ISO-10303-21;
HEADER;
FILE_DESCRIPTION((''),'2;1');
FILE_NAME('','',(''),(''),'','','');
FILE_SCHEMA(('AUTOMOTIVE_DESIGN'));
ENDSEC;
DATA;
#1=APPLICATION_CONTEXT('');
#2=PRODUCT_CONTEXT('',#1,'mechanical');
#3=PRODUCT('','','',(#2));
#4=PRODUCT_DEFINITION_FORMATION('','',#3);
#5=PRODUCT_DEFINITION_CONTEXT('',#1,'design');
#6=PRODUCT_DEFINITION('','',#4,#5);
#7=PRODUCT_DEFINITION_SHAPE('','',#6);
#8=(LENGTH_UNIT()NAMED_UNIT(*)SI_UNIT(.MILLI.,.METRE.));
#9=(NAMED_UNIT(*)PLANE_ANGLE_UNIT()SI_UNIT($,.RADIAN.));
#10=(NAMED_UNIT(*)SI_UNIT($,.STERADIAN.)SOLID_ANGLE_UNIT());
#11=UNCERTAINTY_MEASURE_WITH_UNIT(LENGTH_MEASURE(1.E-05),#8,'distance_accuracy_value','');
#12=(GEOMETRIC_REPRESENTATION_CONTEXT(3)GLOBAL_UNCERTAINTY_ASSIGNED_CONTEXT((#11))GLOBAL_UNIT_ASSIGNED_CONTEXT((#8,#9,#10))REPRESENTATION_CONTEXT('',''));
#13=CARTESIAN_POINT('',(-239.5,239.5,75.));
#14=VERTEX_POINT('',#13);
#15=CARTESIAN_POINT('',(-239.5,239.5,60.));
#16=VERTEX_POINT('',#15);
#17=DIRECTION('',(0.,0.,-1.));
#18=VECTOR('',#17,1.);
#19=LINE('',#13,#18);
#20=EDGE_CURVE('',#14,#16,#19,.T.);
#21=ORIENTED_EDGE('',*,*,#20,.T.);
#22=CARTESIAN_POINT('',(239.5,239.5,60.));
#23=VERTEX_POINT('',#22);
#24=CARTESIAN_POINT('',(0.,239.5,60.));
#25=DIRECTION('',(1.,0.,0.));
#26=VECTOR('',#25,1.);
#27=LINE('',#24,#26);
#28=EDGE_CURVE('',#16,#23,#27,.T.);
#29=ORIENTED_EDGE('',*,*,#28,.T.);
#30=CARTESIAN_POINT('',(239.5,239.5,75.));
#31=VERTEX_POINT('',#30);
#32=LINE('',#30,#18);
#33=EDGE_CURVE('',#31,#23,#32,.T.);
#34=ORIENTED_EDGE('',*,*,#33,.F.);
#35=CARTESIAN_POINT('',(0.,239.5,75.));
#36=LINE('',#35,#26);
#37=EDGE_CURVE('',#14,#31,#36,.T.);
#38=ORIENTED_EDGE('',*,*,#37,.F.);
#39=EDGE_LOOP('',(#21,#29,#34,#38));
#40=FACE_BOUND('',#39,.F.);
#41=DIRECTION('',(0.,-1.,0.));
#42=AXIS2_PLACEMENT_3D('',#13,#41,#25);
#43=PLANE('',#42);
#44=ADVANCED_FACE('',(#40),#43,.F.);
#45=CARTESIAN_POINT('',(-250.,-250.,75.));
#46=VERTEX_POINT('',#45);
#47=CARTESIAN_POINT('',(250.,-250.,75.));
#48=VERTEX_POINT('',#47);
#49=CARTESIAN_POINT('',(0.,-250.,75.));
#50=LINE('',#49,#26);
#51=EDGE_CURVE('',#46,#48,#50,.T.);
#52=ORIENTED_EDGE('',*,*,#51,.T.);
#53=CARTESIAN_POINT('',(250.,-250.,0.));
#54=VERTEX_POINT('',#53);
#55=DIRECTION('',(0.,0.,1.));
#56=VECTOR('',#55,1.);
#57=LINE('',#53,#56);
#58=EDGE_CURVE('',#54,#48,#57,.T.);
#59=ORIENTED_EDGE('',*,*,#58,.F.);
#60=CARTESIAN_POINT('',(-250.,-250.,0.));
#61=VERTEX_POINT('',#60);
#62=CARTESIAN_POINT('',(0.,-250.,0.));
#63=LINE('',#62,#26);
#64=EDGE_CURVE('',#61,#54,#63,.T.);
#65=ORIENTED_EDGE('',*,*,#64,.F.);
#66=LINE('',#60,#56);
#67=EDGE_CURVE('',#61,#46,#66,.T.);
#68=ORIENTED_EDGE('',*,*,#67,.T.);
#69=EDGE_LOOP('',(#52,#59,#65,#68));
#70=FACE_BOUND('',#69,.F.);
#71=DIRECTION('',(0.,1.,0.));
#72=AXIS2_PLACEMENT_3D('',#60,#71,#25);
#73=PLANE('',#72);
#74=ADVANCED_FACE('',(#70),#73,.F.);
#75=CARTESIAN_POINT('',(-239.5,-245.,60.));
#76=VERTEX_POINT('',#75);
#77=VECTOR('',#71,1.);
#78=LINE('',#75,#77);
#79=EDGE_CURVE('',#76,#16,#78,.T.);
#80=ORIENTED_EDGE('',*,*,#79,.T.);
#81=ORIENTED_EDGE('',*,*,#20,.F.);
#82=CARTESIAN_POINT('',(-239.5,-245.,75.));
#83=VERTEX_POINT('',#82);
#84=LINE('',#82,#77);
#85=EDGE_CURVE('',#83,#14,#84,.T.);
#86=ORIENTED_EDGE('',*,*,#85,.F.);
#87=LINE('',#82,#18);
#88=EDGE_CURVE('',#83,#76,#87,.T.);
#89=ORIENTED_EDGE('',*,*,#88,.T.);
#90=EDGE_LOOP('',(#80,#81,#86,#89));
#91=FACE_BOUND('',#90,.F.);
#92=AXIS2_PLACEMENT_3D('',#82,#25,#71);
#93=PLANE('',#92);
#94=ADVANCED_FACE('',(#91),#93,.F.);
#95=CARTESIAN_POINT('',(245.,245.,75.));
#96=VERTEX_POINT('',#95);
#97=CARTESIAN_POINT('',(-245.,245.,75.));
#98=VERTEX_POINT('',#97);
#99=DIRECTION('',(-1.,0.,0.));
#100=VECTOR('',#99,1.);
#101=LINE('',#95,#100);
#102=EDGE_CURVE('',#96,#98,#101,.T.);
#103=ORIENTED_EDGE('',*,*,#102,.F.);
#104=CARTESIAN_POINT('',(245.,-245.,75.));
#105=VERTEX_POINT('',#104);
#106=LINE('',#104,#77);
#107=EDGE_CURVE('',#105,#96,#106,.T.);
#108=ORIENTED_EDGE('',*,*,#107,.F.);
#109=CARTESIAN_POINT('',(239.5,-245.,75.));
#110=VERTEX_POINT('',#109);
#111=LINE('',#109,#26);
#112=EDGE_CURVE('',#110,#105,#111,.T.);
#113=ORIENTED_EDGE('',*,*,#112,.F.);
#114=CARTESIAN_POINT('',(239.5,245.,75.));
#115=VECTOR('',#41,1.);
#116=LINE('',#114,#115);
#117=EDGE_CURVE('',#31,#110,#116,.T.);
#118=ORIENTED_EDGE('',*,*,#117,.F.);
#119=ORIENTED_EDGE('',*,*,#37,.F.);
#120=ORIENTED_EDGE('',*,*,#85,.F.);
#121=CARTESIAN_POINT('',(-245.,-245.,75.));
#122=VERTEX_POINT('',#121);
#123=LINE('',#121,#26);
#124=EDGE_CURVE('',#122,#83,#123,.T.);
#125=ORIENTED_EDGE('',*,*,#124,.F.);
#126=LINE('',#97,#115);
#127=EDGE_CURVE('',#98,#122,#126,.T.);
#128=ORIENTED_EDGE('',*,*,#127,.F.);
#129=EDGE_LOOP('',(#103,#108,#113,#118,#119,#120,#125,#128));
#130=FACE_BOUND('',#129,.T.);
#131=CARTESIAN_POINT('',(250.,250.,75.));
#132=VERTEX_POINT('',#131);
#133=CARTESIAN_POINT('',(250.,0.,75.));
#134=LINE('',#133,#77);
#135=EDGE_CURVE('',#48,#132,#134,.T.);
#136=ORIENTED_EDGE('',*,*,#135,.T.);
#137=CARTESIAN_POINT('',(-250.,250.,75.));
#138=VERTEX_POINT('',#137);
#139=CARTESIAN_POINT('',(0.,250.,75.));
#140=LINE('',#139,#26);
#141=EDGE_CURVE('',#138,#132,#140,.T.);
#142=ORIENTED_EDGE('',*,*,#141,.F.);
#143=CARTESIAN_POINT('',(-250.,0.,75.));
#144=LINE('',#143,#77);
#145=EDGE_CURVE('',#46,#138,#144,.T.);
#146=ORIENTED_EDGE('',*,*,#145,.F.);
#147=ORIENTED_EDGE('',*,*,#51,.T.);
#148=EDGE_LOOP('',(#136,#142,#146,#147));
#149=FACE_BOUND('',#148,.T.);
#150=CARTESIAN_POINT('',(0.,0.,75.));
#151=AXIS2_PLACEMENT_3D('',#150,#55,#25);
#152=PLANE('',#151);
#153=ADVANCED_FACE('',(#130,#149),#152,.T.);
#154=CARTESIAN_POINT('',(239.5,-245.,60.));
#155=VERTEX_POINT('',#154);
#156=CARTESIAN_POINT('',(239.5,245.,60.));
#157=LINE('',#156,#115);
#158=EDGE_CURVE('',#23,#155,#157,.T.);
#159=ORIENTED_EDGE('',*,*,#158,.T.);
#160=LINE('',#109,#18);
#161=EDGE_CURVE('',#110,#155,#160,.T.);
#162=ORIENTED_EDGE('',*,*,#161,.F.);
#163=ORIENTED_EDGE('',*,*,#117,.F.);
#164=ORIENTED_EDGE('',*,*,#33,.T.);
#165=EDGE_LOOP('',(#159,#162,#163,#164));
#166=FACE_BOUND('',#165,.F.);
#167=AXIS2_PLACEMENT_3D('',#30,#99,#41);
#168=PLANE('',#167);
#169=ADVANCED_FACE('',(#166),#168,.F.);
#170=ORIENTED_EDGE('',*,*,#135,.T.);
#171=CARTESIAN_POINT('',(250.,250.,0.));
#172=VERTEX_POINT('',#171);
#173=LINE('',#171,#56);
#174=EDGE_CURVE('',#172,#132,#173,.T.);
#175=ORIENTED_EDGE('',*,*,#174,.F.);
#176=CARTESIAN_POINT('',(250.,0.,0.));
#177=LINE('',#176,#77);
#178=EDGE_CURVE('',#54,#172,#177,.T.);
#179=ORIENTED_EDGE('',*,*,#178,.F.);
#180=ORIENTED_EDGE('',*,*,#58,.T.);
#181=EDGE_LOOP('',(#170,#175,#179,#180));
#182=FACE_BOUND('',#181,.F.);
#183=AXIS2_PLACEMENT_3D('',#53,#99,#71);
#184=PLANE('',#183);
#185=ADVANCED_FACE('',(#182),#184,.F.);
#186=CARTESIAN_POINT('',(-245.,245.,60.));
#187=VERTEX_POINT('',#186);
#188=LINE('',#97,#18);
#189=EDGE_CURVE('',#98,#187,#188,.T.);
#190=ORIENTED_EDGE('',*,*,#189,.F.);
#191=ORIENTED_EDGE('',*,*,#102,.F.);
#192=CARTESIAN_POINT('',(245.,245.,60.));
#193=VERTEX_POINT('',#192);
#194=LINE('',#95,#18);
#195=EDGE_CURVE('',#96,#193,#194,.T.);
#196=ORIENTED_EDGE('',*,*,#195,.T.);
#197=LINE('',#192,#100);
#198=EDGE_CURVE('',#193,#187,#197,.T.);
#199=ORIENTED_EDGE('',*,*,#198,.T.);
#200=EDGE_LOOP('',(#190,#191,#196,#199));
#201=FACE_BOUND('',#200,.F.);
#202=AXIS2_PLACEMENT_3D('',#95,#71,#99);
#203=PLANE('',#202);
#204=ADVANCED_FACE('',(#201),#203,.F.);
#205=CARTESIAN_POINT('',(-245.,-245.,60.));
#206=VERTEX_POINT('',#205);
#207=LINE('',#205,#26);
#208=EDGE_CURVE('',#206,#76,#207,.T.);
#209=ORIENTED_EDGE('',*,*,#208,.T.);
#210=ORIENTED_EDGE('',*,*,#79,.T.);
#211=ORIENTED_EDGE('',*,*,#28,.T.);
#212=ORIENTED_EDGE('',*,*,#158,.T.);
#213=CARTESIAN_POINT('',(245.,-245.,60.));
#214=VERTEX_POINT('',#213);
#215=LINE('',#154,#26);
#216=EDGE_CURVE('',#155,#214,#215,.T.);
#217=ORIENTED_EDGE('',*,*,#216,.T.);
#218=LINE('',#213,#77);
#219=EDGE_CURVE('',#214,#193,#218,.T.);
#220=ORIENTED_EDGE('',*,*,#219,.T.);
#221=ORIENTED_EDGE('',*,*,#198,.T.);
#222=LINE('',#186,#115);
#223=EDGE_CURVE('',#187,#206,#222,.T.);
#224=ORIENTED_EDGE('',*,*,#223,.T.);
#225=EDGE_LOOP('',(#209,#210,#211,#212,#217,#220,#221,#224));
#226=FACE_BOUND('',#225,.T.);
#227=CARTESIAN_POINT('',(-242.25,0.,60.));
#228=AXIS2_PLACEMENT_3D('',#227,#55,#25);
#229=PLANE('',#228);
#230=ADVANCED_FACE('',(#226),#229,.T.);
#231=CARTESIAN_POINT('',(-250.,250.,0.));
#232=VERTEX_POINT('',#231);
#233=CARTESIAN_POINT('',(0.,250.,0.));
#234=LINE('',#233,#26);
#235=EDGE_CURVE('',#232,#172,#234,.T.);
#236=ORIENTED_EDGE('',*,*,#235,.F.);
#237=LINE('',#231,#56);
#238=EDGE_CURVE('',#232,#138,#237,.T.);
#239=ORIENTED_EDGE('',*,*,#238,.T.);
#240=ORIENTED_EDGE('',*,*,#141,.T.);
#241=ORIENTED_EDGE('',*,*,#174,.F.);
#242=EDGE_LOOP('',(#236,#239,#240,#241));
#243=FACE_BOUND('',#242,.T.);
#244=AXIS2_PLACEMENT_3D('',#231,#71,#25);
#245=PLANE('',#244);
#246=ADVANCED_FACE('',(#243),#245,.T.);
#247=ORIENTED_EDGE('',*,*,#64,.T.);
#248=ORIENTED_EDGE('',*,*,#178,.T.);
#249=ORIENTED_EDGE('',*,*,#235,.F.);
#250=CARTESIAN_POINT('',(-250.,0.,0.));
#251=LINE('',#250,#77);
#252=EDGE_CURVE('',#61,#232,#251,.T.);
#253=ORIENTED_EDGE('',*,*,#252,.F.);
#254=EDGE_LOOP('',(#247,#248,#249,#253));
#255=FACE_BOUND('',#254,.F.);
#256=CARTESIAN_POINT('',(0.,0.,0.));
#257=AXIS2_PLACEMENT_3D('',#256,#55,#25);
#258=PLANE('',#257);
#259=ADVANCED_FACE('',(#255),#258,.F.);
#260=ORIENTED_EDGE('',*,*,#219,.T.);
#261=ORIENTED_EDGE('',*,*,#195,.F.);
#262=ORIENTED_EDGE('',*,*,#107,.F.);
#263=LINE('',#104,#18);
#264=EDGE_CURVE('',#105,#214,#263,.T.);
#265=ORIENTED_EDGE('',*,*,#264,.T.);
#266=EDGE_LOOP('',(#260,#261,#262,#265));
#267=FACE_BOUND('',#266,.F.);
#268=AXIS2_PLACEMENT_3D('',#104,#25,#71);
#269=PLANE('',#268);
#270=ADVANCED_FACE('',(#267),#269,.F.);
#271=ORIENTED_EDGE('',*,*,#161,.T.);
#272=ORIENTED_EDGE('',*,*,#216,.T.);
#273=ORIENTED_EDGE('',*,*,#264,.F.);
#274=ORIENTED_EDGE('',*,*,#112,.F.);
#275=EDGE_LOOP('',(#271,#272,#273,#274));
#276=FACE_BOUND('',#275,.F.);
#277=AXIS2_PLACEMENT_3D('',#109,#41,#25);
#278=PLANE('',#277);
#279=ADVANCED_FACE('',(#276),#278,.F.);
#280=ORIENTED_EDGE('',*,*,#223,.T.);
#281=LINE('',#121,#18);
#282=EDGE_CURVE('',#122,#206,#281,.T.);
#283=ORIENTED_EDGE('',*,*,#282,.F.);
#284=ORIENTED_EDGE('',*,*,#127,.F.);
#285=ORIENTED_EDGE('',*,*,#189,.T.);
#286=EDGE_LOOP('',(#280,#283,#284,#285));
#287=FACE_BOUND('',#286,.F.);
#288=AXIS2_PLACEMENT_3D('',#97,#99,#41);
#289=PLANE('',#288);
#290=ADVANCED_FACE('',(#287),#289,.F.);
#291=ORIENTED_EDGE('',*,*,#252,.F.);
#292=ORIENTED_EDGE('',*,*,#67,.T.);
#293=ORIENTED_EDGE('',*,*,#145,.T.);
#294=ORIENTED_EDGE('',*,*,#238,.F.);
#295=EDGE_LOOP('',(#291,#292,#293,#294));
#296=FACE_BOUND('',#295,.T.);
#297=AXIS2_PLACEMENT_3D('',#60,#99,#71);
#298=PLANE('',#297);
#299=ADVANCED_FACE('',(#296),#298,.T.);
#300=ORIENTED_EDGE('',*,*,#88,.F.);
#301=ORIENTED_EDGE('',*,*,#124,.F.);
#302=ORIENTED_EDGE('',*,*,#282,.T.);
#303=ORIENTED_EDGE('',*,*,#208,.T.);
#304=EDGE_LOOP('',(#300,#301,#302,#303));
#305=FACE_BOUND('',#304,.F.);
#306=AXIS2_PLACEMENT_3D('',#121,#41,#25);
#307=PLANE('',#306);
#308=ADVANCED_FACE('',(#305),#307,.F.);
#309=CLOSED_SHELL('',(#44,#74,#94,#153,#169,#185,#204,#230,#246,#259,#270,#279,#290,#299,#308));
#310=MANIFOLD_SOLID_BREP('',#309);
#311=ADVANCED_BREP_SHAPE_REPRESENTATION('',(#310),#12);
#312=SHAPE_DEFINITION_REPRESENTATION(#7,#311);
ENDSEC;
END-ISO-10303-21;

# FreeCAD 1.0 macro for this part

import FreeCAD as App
import Part
import Sketcher
from FreeCAD import Vector

doc = App.newDocument("Part")
params = doc.addObject("Spreadsheet::Sheet", "Params")
for row, (alias, value) in enumerate([
    ("sketch1_width", "500 mm"),
    ("pad1_length", "75 mm"),
    ("sketch2_width", "479 mm"),
    ("sketch2_width2", "490 mm"),
    ("sketch2_height", "484.5 mm"),
    ("pocket1_length", "15 mm"),
], start=1):
    params.set(f"A{row}", alias)
    params.set(f"B{row}", "=" + value)
    params.setAlias(f"B{row}", alias)

body = doc.addObject("PartDesign::Body", "Body")

# Sketch on XY plane
sketch1 = doc.addObject("Sketcher::SketchObject", "Sketch")
body.addObject(sketch1)
sketch1.AttachmentSupport = (doc.XY_Plane, [""])
sketch1.MapMode = "FlatFace"
sketch1.addGeometry([
    Part.LineSegment(Vector(-250, 250, 0), Vector(-250, -250, 0)),
    Part.LineSegment(Vector(-250, -250, 0), Vector(250, -250, 0)),
    Part.LineSegment(Vector(250, -250, 0), Vector(250, 250, 0)),
    Part.LineSegment(Vector(250, 250, 0), Vector(-250, 250, 0)),
], False)
sketch1.addConstraint([
    Sketcher.Constraint("Coincident", 0, 2, 1, 1),
    Sketcher.Constraint("Coincident", 1, 2, 2, 1),
    Sketcher.Constraint("Coincident", 2, 2, 3, 1),
    Sketcher.Constraint("Coincident", 3, 2, 0, 1),
    Sketcher.Constraint("Vertical", 0),
    Sketcher.Constraint("Horizontal", 1),
    Sketcher.Constraint("Vertical", 2),
    Sketcher.Constraint("Horizontal", 3),
    Sketcher.Constraint("Symmetric", 0, 2, 2, 2, -1, 1),
    Sketcher.Constraint("Equal", 3, 0),
    Sketcher.Constraint("DistanceX", 1, 1, 1, 2, 500.0),
])
sketch1.setExpression("Constraints[10]", "Params.sketch1_width")
pad1 = doc.addObject("PartDesign::Pad", "Pad")
body.addObject(pad1)
pad1.Profile = sketch1
pad1.setExpression("Length", "Params.pad1_length")

# Sketch on XY plane
sketch2 = doc.addObject("Sketcher::SketchObject", "Sketch001")
body.addObject(sketch2)
sketch2.AttachmentSupport = (doc.XY_Plane, [""])
sketch2.MapMode = "FlatFace"
sketch2.AttachmentOffset = App.Placement(Vector(0, 0, 75), App.Rotation())
sketch2.addGeometry([
    Part.LineSegment(Vector(-245, 245, 0), Vector(-245, -245, 0)),  # 0
    Part.LineSegment(Vector(-245, -245, 0), Vector(-239.5, -245, 0)),  # 1
    Part.LineSegment(Vector(-239.5, -245, 0), Vector(-239.5, 239.5, 0)),  # 2
    Part.LineSegment(Vector(-239.5, 239.5, 0), Vector(239.5, 239.5, 0)),  # 3
    Part.LineSegment(Vector(239.5, 239.5, 0), Vector(239.5, -245, 0)),  # 4
    Part.LineSegment(Vector(239.5, -245, 0), Vector(245, -245, 0)),  # 5
    Part.LineSegment(Vector(245, -245, 0), Vector(245, 245, 0)),  # 6
    Part.LineSegment(Vector(245, 245, 0), Vector(-245, 245, 0)),  # 7
], False)
sketch2.addConstraint([
    Sketcher.Constraint("Coincident", 0, 2, 1, 1),
    Sketcher.Constraint("Coincident", 1, 2, 2, 1),
    Sketcher.Constraint("Coincident", 2, 2, 3, 1),
    Sketcher.Constraint("Coincident", 3, 2, 4, 1),
    Sketcher.Constraint("Coincident", 4, 2, 5, 1),
    Sketcher.Constraint("Coincident", 5, 2, 6, 1),
    Sketcher.Constraint("Coincident", 6, 2, 7, 1),
    Sketcher.Constraint("Coincident", 7, 2, 0, 1),
    Sketcher.Constraint("Vertical", 0),
    Sketcher.Constraint("Horizontal", 1),
    Sketcher.Constraint("Vertical", 2),
    Sketcher.Constraint("Horizontal", 3),
    Sketcher.Constraint("Vertical", 4),
    Sketcher.Constraint("Horizontal", 5),
    Sketcher.Constraint("Vertical", 6),
    Sketcher.Constraint("Horizontal", 7),
    Sketcher.Constraint("Symmetric", 0, 2, 6, 2, -1, 1),
    Sketcher.Constraint("Symmetric", 1, 2, 4, 2, -2),
    Sketcher.Constraint("Equal", 7, 0),
    Sketcher.Constraint("DistanceX", 3, 1, 3, 2, 479.0),
    Sketcher.Constraint("DistanceX", 7, 2, 7, 1, 490.0),
    Sketcher.Constraint("DistanceY", 2, 1, 2, 2, 484.5),
])
sketch2.setExpression("Constraints[19]", "Params.sketch2_width")
sketch2.setExpression("Constraints[20]", "Params.sketch2_width2")
sketch2.setExpression("Constraints[21]", "Params.sketch2_height")
pocket1 = doc.addObject("PartDesign::Pocket", "Pocket")
body.addObject(pocket1)
pocket1.Profile = sketch2
pocket1.setExpression("Length", "Params.pocket1_length")

doc.recompute()
